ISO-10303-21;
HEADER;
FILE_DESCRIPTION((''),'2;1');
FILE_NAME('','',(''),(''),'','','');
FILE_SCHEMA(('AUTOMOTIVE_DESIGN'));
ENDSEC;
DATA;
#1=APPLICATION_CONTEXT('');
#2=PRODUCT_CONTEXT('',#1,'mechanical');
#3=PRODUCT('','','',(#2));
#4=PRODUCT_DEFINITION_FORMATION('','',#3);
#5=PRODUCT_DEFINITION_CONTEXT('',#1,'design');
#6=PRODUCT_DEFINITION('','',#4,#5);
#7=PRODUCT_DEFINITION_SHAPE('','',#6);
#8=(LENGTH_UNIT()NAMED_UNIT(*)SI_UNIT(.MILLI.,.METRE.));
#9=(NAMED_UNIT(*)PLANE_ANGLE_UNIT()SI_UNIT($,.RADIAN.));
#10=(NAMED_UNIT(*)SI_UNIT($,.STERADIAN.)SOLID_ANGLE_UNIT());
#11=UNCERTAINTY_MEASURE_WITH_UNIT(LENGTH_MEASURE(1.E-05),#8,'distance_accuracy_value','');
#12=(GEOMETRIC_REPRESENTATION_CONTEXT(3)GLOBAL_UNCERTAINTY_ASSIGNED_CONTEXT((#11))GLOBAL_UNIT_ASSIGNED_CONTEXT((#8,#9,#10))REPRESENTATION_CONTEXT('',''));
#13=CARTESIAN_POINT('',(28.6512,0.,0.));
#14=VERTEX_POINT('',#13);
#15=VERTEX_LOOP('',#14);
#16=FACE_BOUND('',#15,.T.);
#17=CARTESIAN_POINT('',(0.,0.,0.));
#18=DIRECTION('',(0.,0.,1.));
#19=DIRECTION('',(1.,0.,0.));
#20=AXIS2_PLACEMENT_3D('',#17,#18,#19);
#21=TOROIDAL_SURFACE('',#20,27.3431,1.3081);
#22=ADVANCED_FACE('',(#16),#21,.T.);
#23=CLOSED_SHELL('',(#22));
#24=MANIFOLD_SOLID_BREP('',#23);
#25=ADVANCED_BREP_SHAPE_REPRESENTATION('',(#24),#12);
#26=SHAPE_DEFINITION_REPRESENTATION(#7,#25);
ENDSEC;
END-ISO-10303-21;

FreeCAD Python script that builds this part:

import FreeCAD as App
import Part
import Sketcher
from FreeCAD import Vector
Q = App.Units.Quantity

doc = App.newDocument("Part")
body = doc.addObject("PartDesign::Body", "Body")

# Sketch on XZ plane
sketch1 = body.newObject("Sketcher::SketchObject", "Sketch")
sketch1.AttachmentSupport = (doc.getObject("XZ_Plane"), [""])
sketch1.MapMode = "FlatFace"
sketch1.addGeometry(Part.Circle(Vector(-27.3431, 0, 0), Vector(0, 0, 1), 1.3081), False)
sketch1.addConstraint([
    Sketcher.Constraint("PointOnObject", 0, 3, -1),
    Sketcher.Constraint("Diameter", 0, Q("0.103 in")),
    Sketcher.Constraint("DistanceX", 0, 3, -1, 1, Q("1.0765 in")),
])
revolution = body.newObject("PartDesign::Revolution", "Revolution")
revolution.Profile = sketch1
revolution.ReferenceAxis = (sketch1, ["V_Axis"])
revolution.Angle = 360

doc.recompute()
